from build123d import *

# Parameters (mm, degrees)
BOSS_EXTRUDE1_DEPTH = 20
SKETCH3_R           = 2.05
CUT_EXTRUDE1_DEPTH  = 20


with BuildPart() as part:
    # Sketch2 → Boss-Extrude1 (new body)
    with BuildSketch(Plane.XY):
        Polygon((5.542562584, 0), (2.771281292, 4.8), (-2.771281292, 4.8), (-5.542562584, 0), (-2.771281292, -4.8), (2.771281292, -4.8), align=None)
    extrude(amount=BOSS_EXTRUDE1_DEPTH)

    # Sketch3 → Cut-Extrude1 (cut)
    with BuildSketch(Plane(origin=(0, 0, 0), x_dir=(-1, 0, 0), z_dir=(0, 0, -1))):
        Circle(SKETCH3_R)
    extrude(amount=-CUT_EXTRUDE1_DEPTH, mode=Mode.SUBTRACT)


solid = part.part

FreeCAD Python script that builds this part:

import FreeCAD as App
import Part
import Sketcher
from FreeCAD import Vector
Q = App.Units.Quantity


def add_polygon(sketch, points):
    """Adds a closed chain of lines whose ends are joined by coincident constraints."""
    first, n = sketch.GeometryCount, len(points)
    for a, b in zip(points, points[1:] + points[:1]):
        sketch.addGeometry(Part.LineSegment(App.Vector(*a, 0), App.Vector(*b, 0)), False)
    for i in range(n):
        sketch.addConstraint(Sketcher.Constraint("Coincident", first + i, 2, first + (i + 1) % n, 1))

doc = App.newDocument("Part")
body = doc.addObject("PartDesign::Body", "Body")

# Sketch on XY plane
sketch1 = doc.addObject("Sketcher::SketchObject", "Sketch")
body.addObject(sketch1)
sketch1.AttachmentSupport = (doc.XY_Plane, [""])
sketch1.MapMode = "FlatFace"
add_polygon(sketch1, [(6, 0), (3, 5), (-3, 5), (-6, 0), (-3, -5), (3, -5)])  # lines 0-5
sketch1.addConstraint([
    Sketcher.Constraint("Horizontal", 1),
    Sketcher.Constraint("Horizontal", 4),
    Sketcher.Constraint("Symmetric", 0, 2, 3, 2, -1, 1),
    Sketcher.Constraint("Symmetric", 2, 2, 5, 2, -1, 1),
    Sketcher.Constraint("PointOnObject", 2, 2, -1),
    Sketcher.Constraint("Parallel", 2, 5),
    Sketcher.Constraint("Vertical", 1, 2, 3, 2),
    Sketcher.Constraint("Angle", 0, Q("120 deg")),
    Sketcher.Constraint("DistanceY", -1, 1, 0, 2, 4.8),
    Sketcher.Constraint("DistanceX", 1, 2, 1, 1, 5.542563),
])
pad1 = doc.addObject("PartDesign::Pad", "Pad")
body.addObject(pad1)
pad1.Profile = sketch1
pad1.Length = 20

# Sketch on XY plane
sketch2 = doc.addObject("Sketcher::SketchObject", "Sketch001")
body.addObject(sketch2)
sketch2.AttachmentSupport = (doc.XY_Plane, [""])
sketch2.MapMode = "FlatFace"
sketch2.addGeometry(Part.Circle(Vector(0, 0, 0), Vector(0, 0, 1), 2), False)
sketch2.addConstraint([
    Sketcher.Constraint("Coincident", 0, 3, -1, 1),
    Sketcher.Constraint("Diameter", 0, 4.1),
])
pocket1 = doc.addObject("PartDesign::Pocket", "Pocket")
body.addObject(pocket1)
pocket1.Profile = sketch2
pocket1.Length = 20
pocket1.Reversed = True

doc.recompute()
